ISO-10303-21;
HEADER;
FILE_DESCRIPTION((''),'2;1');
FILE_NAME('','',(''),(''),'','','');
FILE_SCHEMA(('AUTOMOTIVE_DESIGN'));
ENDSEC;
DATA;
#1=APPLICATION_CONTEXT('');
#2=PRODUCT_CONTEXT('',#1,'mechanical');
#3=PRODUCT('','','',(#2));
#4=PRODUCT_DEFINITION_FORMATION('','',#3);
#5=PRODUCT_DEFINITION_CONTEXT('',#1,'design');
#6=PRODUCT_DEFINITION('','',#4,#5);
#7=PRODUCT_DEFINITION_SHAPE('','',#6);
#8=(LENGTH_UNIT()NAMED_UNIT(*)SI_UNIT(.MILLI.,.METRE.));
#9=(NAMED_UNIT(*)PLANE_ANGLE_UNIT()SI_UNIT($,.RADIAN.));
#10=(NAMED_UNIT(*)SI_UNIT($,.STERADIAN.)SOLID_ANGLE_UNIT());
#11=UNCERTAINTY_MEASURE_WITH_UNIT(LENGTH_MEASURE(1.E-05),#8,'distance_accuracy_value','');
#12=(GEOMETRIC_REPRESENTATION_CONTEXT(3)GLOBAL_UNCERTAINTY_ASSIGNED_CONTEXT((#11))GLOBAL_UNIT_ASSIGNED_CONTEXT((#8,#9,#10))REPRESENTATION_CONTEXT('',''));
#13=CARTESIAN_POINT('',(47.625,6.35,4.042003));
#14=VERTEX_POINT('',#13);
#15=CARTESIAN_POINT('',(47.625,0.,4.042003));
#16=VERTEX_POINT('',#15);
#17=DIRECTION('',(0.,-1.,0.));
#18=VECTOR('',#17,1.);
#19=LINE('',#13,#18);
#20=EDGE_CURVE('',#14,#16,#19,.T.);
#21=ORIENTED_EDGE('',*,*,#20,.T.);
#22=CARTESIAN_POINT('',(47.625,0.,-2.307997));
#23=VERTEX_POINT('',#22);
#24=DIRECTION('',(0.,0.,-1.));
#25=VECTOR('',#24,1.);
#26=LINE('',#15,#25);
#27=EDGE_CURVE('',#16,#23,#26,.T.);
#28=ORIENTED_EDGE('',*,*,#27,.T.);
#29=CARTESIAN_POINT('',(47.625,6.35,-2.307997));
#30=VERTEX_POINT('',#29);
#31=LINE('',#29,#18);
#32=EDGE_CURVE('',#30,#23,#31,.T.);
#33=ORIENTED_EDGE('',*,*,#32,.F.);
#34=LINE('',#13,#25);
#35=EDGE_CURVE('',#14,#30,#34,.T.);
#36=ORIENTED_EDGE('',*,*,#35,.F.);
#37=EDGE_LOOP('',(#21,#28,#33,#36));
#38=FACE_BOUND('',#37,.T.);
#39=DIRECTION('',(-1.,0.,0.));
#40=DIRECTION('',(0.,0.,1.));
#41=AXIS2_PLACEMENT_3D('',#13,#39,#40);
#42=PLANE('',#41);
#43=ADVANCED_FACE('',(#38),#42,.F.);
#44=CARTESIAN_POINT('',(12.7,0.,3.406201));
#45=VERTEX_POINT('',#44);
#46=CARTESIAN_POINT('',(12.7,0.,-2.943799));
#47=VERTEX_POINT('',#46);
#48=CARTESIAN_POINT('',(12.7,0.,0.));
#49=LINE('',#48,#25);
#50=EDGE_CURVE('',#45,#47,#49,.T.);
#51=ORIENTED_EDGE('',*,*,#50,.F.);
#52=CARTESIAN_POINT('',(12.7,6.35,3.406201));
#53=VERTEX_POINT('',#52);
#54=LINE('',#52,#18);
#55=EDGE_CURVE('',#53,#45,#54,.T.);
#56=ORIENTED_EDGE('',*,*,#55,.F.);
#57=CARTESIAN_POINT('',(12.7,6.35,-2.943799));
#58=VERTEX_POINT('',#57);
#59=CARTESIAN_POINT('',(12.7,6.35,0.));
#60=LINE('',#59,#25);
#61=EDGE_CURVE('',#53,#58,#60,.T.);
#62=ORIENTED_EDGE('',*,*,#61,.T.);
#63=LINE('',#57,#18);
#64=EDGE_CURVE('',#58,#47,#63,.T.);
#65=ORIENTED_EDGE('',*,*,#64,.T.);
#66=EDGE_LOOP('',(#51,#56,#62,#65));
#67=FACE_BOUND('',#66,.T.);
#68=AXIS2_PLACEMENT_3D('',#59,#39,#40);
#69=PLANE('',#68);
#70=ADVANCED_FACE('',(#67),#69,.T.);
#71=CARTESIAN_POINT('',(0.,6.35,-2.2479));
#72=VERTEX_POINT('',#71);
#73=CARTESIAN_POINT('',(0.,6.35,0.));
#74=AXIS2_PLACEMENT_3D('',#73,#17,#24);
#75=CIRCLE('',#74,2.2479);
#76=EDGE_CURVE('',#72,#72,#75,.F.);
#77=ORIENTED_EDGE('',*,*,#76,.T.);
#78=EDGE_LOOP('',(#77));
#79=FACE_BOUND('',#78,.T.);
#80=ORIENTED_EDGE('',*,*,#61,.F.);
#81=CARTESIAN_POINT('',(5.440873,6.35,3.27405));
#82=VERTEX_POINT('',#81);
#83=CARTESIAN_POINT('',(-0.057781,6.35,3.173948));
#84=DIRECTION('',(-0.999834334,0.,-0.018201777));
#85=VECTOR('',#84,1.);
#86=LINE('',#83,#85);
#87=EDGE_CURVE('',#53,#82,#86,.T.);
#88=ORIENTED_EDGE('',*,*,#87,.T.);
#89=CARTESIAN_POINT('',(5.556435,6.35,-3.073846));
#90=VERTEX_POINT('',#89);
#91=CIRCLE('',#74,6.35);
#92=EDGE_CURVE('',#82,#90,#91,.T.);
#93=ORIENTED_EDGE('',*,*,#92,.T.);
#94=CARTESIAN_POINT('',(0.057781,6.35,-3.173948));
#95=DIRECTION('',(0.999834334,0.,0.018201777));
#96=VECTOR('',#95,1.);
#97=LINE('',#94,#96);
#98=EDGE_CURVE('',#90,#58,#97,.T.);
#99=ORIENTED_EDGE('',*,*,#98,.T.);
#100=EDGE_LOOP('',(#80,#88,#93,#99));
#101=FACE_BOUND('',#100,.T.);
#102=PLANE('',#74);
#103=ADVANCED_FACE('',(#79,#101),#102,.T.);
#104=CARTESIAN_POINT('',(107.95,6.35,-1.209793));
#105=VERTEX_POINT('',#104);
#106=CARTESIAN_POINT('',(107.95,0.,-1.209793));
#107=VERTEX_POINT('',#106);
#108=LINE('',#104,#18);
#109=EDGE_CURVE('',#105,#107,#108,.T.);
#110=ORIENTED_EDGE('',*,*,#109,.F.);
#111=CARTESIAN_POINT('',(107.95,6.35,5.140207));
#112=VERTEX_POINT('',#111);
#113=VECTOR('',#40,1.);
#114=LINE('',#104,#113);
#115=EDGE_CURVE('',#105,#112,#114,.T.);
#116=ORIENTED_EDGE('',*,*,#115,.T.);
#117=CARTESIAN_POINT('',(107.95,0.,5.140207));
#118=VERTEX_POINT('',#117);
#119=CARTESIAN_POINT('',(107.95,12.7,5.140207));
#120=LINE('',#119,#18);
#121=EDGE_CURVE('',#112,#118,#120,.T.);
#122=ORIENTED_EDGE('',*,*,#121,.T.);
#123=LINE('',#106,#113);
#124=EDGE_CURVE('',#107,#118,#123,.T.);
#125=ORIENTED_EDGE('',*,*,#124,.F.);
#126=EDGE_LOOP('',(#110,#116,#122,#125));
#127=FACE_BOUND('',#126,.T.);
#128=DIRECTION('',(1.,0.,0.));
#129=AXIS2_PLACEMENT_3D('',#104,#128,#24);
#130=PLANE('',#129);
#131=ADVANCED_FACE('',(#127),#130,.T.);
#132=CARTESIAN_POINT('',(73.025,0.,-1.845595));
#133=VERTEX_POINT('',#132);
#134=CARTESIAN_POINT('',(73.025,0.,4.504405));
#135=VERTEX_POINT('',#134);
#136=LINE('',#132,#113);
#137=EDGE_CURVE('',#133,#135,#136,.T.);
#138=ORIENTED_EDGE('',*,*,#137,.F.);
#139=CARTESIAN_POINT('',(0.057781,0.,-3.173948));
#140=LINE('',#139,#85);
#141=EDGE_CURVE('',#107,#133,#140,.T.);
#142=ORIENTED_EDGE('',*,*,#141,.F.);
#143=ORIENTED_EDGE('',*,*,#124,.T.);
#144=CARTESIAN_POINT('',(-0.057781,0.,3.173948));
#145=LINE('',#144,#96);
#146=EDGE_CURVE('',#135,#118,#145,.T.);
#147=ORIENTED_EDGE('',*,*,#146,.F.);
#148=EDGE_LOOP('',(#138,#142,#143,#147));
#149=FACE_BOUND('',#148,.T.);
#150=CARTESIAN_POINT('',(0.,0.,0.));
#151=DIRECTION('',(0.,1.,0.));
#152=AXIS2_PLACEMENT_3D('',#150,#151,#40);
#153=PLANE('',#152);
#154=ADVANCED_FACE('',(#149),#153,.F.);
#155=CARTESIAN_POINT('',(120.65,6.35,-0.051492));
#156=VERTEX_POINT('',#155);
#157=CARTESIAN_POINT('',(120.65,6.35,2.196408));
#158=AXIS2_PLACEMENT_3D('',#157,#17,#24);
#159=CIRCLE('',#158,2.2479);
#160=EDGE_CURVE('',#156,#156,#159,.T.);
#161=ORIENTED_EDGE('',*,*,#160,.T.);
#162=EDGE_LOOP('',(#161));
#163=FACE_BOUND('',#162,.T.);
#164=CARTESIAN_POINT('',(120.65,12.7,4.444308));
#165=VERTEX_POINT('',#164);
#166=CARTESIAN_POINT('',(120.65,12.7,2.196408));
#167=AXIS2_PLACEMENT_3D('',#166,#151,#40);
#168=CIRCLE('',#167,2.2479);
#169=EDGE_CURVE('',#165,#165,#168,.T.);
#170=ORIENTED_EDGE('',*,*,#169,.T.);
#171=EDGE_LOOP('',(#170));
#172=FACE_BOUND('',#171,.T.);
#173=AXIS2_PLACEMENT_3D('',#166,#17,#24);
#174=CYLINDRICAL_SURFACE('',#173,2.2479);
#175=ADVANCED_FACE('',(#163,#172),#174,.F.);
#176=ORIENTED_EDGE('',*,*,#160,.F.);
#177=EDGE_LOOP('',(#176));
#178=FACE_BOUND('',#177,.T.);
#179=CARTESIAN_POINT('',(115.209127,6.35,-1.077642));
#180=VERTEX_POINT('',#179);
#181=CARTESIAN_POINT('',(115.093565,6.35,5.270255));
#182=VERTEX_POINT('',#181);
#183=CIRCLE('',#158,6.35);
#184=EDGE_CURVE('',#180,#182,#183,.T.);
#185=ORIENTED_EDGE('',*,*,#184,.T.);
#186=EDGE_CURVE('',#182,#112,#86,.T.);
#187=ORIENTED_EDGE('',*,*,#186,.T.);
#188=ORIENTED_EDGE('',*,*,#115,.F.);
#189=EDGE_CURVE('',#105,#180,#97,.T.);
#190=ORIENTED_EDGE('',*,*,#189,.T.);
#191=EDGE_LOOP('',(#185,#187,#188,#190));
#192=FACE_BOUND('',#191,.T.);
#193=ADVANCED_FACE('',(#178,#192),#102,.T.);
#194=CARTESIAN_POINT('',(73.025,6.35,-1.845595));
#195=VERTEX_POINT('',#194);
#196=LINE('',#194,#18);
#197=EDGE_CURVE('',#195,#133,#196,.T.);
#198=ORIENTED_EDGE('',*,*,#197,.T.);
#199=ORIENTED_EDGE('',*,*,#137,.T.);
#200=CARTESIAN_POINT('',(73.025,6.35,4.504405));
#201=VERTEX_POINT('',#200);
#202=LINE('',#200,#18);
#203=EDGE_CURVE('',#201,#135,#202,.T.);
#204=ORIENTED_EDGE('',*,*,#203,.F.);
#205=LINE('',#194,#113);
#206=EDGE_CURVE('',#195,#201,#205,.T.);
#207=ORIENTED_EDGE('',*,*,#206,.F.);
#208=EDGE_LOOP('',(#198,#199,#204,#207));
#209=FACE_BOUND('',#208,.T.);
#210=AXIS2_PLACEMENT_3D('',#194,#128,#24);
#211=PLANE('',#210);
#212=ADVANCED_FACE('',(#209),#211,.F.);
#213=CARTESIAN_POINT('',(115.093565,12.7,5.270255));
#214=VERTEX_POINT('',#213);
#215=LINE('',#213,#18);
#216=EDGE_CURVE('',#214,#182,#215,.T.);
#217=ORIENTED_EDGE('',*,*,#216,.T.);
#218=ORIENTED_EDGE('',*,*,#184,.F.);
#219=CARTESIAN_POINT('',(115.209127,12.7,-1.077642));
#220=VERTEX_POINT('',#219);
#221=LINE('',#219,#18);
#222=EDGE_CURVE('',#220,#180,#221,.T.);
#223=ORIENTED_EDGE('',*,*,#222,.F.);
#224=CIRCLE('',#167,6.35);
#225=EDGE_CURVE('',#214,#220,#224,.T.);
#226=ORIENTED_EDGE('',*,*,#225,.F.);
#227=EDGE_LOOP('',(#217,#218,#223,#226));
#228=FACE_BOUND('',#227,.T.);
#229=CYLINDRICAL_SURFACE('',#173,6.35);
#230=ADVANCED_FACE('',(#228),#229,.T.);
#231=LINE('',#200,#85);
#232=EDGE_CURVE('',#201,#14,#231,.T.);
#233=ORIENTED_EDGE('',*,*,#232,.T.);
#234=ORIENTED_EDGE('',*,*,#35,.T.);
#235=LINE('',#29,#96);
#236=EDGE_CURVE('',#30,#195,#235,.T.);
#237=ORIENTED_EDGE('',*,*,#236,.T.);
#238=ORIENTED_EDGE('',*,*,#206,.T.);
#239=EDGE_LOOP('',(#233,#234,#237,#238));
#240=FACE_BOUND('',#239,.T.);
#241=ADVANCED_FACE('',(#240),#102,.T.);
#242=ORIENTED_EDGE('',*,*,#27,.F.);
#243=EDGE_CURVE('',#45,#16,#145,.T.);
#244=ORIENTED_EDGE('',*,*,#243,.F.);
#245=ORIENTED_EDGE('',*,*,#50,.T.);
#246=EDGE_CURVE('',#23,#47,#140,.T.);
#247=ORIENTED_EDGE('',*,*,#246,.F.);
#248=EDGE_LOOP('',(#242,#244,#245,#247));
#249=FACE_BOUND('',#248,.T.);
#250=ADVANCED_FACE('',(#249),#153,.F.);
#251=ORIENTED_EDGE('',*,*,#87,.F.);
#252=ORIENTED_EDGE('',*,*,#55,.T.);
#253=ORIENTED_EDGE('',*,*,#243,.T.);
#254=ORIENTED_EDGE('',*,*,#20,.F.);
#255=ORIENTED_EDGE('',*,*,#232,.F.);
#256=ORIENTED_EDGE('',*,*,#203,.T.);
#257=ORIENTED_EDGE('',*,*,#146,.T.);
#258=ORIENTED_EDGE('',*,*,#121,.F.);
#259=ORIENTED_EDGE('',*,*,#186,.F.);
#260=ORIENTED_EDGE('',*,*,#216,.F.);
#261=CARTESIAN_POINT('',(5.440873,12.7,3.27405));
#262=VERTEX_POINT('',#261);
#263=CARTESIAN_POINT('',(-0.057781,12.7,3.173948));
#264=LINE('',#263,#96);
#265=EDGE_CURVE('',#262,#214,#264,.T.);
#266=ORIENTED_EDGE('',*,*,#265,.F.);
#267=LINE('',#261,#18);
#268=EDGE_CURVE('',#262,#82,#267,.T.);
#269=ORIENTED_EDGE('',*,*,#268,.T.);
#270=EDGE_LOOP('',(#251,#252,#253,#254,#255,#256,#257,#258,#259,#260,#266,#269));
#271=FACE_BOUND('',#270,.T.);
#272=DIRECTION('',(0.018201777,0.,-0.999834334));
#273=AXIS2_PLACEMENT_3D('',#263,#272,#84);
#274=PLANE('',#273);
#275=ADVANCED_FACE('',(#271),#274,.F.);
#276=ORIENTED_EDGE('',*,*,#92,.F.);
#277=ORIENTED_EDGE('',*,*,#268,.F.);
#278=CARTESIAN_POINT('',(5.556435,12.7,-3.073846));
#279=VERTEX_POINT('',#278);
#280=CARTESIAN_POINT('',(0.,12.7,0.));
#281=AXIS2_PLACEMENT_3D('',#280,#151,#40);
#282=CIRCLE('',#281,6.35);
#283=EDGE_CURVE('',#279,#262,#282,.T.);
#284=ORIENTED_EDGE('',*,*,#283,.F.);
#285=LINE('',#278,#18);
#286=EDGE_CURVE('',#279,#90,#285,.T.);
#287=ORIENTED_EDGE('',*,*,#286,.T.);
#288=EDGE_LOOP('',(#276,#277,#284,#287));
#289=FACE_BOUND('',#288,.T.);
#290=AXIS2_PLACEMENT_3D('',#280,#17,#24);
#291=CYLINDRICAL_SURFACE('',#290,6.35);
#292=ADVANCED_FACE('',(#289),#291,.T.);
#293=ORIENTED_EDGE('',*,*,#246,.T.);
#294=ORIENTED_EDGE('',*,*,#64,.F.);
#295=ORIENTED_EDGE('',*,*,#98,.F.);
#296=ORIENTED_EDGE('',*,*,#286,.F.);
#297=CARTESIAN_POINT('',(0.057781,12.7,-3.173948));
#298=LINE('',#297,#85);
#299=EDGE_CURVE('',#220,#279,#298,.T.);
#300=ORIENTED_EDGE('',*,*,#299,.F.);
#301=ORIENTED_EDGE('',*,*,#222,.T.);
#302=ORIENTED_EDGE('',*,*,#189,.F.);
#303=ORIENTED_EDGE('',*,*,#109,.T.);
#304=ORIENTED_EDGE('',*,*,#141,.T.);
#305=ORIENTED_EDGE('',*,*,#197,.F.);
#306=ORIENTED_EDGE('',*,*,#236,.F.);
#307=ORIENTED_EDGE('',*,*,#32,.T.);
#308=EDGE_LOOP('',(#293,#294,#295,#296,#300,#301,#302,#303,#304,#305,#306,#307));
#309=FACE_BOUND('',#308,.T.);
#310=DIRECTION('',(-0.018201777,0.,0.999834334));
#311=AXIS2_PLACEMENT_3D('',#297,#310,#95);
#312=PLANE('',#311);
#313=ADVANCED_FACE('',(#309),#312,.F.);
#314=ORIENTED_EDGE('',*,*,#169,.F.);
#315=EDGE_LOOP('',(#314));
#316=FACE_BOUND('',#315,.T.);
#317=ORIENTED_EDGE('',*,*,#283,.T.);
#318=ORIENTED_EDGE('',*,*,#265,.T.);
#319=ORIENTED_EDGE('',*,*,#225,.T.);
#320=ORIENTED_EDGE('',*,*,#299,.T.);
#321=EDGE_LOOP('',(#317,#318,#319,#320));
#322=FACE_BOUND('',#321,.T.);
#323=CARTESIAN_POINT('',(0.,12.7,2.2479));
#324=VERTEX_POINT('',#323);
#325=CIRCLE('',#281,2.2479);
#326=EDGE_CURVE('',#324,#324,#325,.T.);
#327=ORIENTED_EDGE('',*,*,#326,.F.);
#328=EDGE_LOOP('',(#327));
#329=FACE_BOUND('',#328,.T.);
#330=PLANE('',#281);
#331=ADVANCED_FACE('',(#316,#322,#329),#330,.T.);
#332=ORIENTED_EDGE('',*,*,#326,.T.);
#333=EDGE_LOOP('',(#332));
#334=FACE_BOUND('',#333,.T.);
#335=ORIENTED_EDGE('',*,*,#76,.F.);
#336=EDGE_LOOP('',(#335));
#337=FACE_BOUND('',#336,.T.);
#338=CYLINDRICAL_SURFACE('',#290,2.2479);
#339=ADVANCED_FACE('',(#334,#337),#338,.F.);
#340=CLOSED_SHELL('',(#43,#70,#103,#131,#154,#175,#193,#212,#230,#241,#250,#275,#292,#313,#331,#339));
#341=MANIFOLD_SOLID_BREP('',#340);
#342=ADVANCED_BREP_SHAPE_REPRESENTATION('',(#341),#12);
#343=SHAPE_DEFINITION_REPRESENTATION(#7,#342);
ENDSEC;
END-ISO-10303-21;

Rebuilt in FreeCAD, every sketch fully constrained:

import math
import FreeCAD as App
import Part
import Sketcher
from FreeCAD import Vector
Q = App.Units.Quantity


def add_polygon(sketch, points):
    """Adds a closed chain of lines whose ends are joined by coincident constraints."""
    first, n = sketch.GeometryCount, len(points)
    for a, b in zip(points, points[1:] + points[:1]):
        sketch.addGeometry(Part.LineSegment(App.Vector(*a, 0), App.Vector(*b, 0)), False)
    for i in range(n):
        sketch.addConstraint(Sketcher.Constraint("Coincident", first + i, 2, first + (i + 1) % n, 1))

doc = App.newDocument("Part")
body = doc.addObject("PartDesign::Body", "Body")

sketch1 = body.newObject("Sketcher::SketchObject", "Sketch")
sketch1.AttachmentSupport = (doc.getObject("XZ_Plane"), [""])
sketch1.MapMode = "FlatFace"
sketch1.addGeometry([
    Part.ArcOfCircle(Part.Circle(Vector(0, 0, 0), Vector(0, 0, 1), 6.3), math.radians(31), math.radians(331)),
    Part.LineSegment(Vector(5.4, 3.3, 0), Vector(115.1, 5.3, 0)),
    Part.ArcOfCircle(Part.Circle(Vector(120.7, 2.2, 0), Vector(0, 0, 1), 6.3), math.radians(-149), math.radians(151)),
    Part.LineSegment(Vector(115.2, -1.1, 0), Vector(5.6, -3.1, 0)),
    Part.Circle(Vector(120.7, 2.2, 0), Vector(0, 0, 1), 2.2),
    Part.Circle(Vector(0, 0, 0), Vector(0, 0, 1), 2.2),
], False)
sketch1.addConstraint([
    Sketcher.Constraint("Coincident", 0, 1, 1, 1),
    Sketcher.Constraint("Coincident", 1, 2, 2, 2),
    Sketcher.Constraint("Coincident", 2, 1, 3, 1),
    Sketcher.Constraint("Coincident", 3, 2, 0, 2),
    Sketcher.Constraint("Coincident", 0, 3, -1, 1),
    Sketcher.Constraint("Coincident", 5, 3, -1, 1),
    Sketcher.Constraint("Coincident", 4, 3, 2, 3),
    Sketcher.Constraint("Equal", 0, 2),
    Sketcher.Constraint("Equal", 4, 5),
    Sketcher.Constraint("Parallel", 1, 3),
    Sketcher.Constraint("Equal", 1, 3),
    Sketcher.Constraint("Radius", 0, Q("0.25 in")),
    Sketcher.Constraint("Diameter", 4, Q("0.177 in")),
    Sketcher.Constraint("DistanceX", -1, 1, 2, 3, Q("4.75 in")),
    Sketcher.Constraint("DistanceY", 3, 2, 1, 2, Q("8.344101 mm")),
    Sketcher.Constraint("Distance", 1, Q("109.670861 mm")),
    Sketcher.Constraint("DistanceY", -1, 1, 2, 3, Q("2.196408 mm")),
])
pad1 = body.newObject("PartDesign::Pad", "Pad")
pad1.Profile = sketch1
pad1.Length = Q("0.5 in")
pad1.Reversed = True

sketch2 = body.newObject("Sketcher::SketchObject", "Sketch001")
sketch2.AttachmentSupport = (doc.getObject("XZ_Plane"), [""])
sketch2.MapMode = "FlatFace"
sketch2.addGeometry([
    Part.ArcOfCircle(Part.Circle(Vector(0, 0, 0), Vector(0, 0, 1), 6), math.radians(32), math.radians(270)),
    Part.LineSegment(Vector(0, -6, 0), Vector(13, -6, 0)),
    Part.LineSegment(Vector(13, -6, 0), Vector(13, 3, 0)),
    Part.LineSegment(Vector(13, 3, 0), Vector(5, 3, 0)),
    Part.ArcOfCircle(Part.Circle(Vector(121, 2, 0), Vector(0, 0, 1), 6), math.radians(-148), math.radians(90)),
    Part.LineSegment(Vector(121, 9, 0), Vector(108, 9, 0)),
    Part.LineSegment(Vector(108, 9, 0), Vector(108, -1, 0)),
    Part.LineSegment(Vector(108, -1, 0), Vector(115, -1, 0)),
], False)
sketch2.addConstraint([
    Sketcher.Constraint("Tangent", 0, 2, 1, 1),
    Sketcher.Constraint("Coincident", 1, 2, 2, 1),
    Sketcher.Constraint("Coincident", 2, 2, 3, 1),
    Sketcher.Constraint("Coincident", 3, 2, 0, 1),
    Sketcher.Constraint("Tangent", 4, 2, 5, 1),
    Sketcher.Constraint("Coincident", 5, 2, 6, 1),
    Sketcher.Constraint("Coincident", 6, 2, 7, 1),
    Sketcher.Constraint("Coincident", 7, 2, 4, 1),
    Sketcher.Constraint("Horizontal", 1),
    Sketcher.Constraint("Vertical", 2),
    Sketcher.Constraint("Horizontal", 3),
    Sketcher.Constraint("Horizontal", 5),
    Sketcher.Constraint("Vertical", 6),
    Sketcher.Constraint("Horizontal", 7),
    Sketcher.Constraint("Coincident", 0, 3, -1, 1),
    Sketcher.Constraint("Equal", 0, 4),
    Sketcher.Constraint("Equal", 1, 5),
    Sketcher.Constraint("Equal", 3, 7),
    Sketcher.Constraint("Radius", 0, Q("0.25 in")),
    Sketcher.Constraint("DistanceX", 1, 1, 1, 2, Q("0.5 in")),
    Sketcher.Constraint("DistanceX", -1, 1, 4, 3, Q("4.75 in")),
    Sketcher.Constraint("DistanceY", 2, 1, 2, 2, Q("9.756201 mm")),
    Sketcher.Constraint("DistanceY", -1, 1, 4, 3, Q("2.196408 mm")),
])
pocket1 = body.newObject("PartDesign::Pocket", "Pocket")
pocket1.Profile = sketch2
pocket1.Length = Q("0.25 in")

sketch3 = body.newObject("Sketcher::SketchObject", "Sketch002")
sketch3.AttachmentSupport = (doc.getObject("XZ_Plane"), [""])
sketch3.MapMode = "FlatFace"
add_polygon(sketch3, [(48, 4), (48, -2), (73, -2), (73, 5)])
sketch3.addConstraint([
    Sketcher.Constraint("Vertical", 0),
    Sketcher.Constraint("Vertical", 2),
    Sketcher.Constraint("Parallel", 1, 3),
    Sketcher.Constraint("DistanceX", 0, 2, 1, 2, Q("1 in")),
    Sketcher.Constraint("DistanceY", 0, 2, 0, 1, Q("0.25 in")),
    Sketcher.Constraint("DistanceX", -1, 1, 0, 2, Q("1.875 in")),
    Sketcher.Constraint("DistanceY", 0, 2, 1, 2, Q("0.462402 mm")),
    Sketcher.Constraint("DistanceY", 0, 2, -1, 1, Q("2.307997 mm")),
])
pocket2 = body.newObject("PartDesign::Pocket", "Pocket001")
pocket2.Profile = sketch3
pocket2.Length = Q("0.25 in")

doc.recompute()
